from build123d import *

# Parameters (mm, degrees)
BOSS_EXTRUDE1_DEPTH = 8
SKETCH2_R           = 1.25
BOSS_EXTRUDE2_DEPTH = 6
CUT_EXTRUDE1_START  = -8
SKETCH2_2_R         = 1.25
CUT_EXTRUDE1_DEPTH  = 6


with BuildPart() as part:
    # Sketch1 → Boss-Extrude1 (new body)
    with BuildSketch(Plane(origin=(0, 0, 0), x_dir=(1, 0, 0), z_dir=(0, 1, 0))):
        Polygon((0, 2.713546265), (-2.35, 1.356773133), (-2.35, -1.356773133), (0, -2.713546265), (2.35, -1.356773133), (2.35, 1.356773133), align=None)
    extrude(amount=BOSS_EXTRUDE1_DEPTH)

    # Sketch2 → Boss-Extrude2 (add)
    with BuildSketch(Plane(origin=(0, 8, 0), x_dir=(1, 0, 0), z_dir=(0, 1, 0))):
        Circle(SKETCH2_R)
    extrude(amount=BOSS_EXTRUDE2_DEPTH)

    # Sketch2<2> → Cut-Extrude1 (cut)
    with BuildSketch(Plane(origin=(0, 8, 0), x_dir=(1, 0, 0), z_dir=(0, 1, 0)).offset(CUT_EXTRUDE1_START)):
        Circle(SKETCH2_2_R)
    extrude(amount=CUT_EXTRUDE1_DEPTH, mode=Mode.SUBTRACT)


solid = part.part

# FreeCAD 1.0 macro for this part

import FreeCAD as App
import Part
import Sketcher
Q = App.Units.Quantity


def add_polygon(sketch, points):
    """Adds a closed chain of lines whose ends are joined by coincident constraints."""
    first, n = sketch.GeometryCount, len(points)
    for a, b in zip(points, points[1:] + points[:1]):
        sketch.addGeometry(Part.LineSegment(App.Vector(*a, 0), App.Vector(*b, 0)), False)
    for i in range(n):
        sketch.addConstraint(Sketcher.Constraint("Coincident", first + i, 2, first + (i + 1) % n, 1))

doc = App.newDocument("Part")
params = doc.addObject("Spreadsheet::Sheet", "Params")
for row, (alias, value) in enumerate([
    ("pad1_length", "8 mm"),
    ("sketch2_diameter", "2.5 mm"),
    ("pad2_length", "6 mm"),
    ("sketch3_diameter", "2.5 mm"),
    ("pocket1_length", "6 mm"),
], start=1):
    params.set(f"A{row}", alias)
    params.set(f"B{row}", "=" + value)
    params.setAlias(f"B{row}", alias)

body = doc.addObject("PartDesign::Body", "Body")

# Sketch on XZ plane
sketch1 = body.newObject("Sketcher::SketchObject", "Sketch")
sketch1.AttachmentSupport = (doc.getObject("XZ_Plane"), [""])
sketch1.MapMode = "FlatFace"
add_polygon(sketch1, [(0, -2.713546), (-2.35, -1.356773), (-2.35, 1.356773), (0, 2.713546), (2.35, 1.356773), (2.35, -1.356773)])  # lines 0-5
sketch1.addConstraint([
    Sketcher.Constraint("Vertical", 1),
    Sketcher.Constraint("Vertical", 4),
    Sketcher.Constraint("Symmetric", 0, 2, 3, 2, -1, 1),
    Sketcher.Constraint("Symmetric", 2, 2, 5, 2, -1, 1),
    Sketcher.Constraint("PointOnObject", 2, 2, -2),
    Sketcher.Constraint("Parallel", 2, 5),
    Sketcher.Constraint("Horizontal", 1, 2, 3, 2),
    Sketcher.Constraint("Angle", 0, Q("150 deg")),
    Sketcher.Constraint("DistanceX", 1, 2, 3, 2, Q("4.7 mm")),
    Sketcher.Constraint("DistanceY", 1, 1, 1, 2, Q("2.713546 mm")),
])
pad1 = body.newObject("PartDesign::Pad", "Pad")
pad1.Profile = sketch1
pad1.setExpression("Length", "Params.pad1_length")
pad1.Reversed = True

# Sketch on XZ plane
sketch2 = body.newObject("Sketcher::SketchObject", "Sketch001")
sketch2.AttachmentSupport = (doc.getObject("XZ_Plane"), [""])
sketch2.MapMode = "FlatFace"
sketch2.AttachmentOffset = App.Placement(App.Vector(0, 0, -8), App.Rotation())
sketch2.addGeometry(Part.Circle(App.Vector(0, 0, 0), App.Vector(0, 0, 1), 1.25), False)
sketch2.addConstraint([
    Sketcher.Constraint("Coincident", 0, 3, -1, 1),
    Sketcher.Constraint("Diameter", 0, Q("2.5 mm")),
])
sketch2.setExpression("Constraints[1]", "Params.sketch2_diameter")
pad2 = body.newObject("PartDesign::Pad", "Pad001")
pad2.Profile = sketch2
pad2.setExpression("Length", "Params.pad2_length")
pad2.Reversed = True

# Sketch on XZ plane
sketch3 = body.newObject("Sketcher::SketchObject", "Sketch002")
sketch3.AttachmentSupport = (doc.getObject("XZ_Plane"), [""])
sketch3.MapMode = "FlatFace"
sketch3.addGeometry(Part.Circle(App.Vector(0, 0, 0), App.Vector(0, 0, 1), 1.25), False)
sketch3.addConstraint([
    Sketcher.Constraint("Coincident", 0, 3, -1, 1),
    Sketcher.Constraint("Diameter", 0, Q("2.5 mm")),
])
sketch3.setExpression("Constraints[1]", "Params.sketch3_diameter")
pocket1 = body.newObject("PartDesign::Pocket", "Pocket")
pocket1.Profile = sketch3
pocket1.setExpression("Length", "Params.pocket1_length")

doc.recompute()
